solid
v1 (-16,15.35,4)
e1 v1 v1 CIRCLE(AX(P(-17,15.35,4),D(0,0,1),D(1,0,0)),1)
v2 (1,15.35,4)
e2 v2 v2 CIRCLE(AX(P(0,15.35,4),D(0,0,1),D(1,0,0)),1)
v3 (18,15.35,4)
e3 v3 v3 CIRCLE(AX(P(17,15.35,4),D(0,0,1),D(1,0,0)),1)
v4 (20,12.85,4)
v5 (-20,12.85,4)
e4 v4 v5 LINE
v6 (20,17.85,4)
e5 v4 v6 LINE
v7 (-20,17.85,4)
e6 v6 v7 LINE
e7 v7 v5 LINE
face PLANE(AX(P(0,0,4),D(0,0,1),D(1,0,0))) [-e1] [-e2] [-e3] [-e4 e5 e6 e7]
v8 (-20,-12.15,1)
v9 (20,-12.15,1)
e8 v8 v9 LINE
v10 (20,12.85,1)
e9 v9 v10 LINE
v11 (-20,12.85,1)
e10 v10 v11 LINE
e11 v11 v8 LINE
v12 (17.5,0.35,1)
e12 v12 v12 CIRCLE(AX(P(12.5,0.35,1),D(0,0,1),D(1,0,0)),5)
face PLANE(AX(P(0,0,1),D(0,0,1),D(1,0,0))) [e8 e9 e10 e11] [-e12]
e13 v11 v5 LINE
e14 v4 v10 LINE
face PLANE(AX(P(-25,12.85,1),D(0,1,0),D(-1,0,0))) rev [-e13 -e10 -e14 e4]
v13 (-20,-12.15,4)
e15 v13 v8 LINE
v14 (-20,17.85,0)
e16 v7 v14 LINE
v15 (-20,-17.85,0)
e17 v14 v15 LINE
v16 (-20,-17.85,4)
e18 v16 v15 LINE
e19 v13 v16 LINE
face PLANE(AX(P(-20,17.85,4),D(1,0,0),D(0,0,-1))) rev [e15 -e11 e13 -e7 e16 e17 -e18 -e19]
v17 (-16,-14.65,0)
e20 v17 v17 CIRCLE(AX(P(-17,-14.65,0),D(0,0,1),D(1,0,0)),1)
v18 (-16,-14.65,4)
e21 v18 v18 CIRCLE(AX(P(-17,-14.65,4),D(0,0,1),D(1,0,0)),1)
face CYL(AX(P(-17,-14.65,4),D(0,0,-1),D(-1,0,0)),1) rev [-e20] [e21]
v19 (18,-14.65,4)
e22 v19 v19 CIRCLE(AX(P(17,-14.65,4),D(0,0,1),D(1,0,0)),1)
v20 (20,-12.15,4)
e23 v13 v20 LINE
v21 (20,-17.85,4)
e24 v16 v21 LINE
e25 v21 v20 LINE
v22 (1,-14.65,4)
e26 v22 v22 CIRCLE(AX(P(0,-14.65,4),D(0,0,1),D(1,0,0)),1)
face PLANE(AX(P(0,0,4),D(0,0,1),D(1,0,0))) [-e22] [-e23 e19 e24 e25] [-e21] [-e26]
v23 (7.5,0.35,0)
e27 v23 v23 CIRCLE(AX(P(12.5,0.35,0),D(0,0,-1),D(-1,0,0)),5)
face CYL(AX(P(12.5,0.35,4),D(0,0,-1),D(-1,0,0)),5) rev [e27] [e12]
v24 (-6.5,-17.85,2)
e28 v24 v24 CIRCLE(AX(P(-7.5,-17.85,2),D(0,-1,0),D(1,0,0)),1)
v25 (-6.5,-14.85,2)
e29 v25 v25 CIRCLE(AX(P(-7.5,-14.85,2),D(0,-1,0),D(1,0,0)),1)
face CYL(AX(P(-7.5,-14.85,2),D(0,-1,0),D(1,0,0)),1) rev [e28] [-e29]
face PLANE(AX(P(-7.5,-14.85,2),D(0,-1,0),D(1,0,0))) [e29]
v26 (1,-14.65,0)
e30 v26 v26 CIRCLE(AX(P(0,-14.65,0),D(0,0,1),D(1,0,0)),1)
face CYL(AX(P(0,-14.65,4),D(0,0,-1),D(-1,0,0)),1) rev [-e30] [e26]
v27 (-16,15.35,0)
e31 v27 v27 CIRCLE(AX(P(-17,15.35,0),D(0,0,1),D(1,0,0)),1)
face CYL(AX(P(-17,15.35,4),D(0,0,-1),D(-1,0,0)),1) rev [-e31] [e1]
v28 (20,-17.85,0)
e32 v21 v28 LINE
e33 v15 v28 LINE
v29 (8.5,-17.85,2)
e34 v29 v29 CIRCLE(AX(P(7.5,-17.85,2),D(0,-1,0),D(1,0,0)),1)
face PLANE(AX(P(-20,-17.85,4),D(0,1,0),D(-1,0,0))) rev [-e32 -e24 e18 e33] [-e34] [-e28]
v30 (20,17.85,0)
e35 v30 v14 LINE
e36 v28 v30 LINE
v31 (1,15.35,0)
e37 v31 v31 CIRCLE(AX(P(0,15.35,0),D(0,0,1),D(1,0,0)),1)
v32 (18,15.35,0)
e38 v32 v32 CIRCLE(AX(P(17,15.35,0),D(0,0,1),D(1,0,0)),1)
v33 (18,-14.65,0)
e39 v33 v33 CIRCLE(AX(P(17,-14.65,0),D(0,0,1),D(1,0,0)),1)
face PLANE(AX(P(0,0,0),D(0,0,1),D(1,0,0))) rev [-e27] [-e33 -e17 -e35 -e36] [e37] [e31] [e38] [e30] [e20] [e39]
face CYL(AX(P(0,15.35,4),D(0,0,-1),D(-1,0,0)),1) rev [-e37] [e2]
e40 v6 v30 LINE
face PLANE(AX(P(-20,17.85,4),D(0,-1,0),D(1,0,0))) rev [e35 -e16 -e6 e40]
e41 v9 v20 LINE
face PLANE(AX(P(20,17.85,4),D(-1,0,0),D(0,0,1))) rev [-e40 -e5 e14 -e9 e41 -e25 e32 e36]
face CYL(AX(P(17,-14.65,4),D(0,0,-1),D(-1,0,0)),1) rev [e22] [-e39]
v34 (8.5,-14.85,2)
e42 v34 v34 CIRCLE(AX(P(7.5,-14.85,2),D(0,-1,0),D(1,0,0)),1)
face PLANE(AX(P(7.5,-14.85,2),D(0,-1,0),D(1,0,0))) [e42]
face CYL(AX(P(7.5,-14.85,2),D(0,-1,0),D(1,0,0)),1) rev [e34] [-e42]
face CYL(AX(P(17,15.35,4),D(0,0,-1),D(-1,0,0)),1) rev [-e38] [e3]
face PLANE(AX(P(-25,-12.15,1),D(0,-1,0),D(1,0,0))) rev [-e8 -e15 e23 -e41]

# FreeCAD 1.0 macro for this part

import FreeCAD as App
import Part
import Sketcher

V = App.Vector
Q = App.Units.Quantity


def add_polygon(sketch, points):
    """Adds a closed chain of lines whose ends are joined by coincident constraints."""
    first, n = sketch.GeometryCount, len(points)
    for a, b in zip(points, points[1:] + points[:1]):
        sketch.addGeometry(Part.LineSegment(App.Vector(*a, 0), App.Vector(*b, 0)), False)
    for i in range(n):
        sketch.addConstraint(Sketcher.Constraint("Coincident", first + i, 2, first + (i + 1) % n, 1))

doc = App.newDocument("Part")
params = doc.addObject("Spreadsheet::Sheet", "Params")
for row, (alias, value) in enumerate([
    ("sketch1_diameter", "2 mm"),
    ("sketch1_width", "40 mm"),
    ("sketch1_height", "35.7 mm"),
    ("pad1_length", "4 mm"),
    ("sketch2_width", "50 mm"),
    ("sketch2_height", "25 mm"),
    ("pocket1_length", "3 mm"),
    ("sketch3_diameter", "2 mm"),
    ("pocket2_length", "3 mm"),
    ("sketch4_diameter", "10 mm"),
], start=1):
    params.set(f"A{row}", alias)
    params.set(f"B{row}", "=" + value)
    params.setAlias(f"B{row}", alias)

body = doc.addObject("PartDesign::Body", "Body")

# Sketch on XY plane
sketch1 = body.newObject("Sketcher::SketchObject", "Sketch")
sketch1.AttachmentSupport = (doc.getObject("XY_Plane"), [""])
sketch1.MapMode = "FlatFace"
add_polygon(sketch1, [(-20, 17.9), (-20, -17.9), (20, -17.9), (20, 17.9)])  # lines 0-3
sketch1.addGeometry(Part.Circle(V(-17, -14.7, 0), V(0, 0, 1), 1), False)  # 4
sketch1.addGeometry(Part.Circle(V(0, -14.7, 0), V(0, 0, 1), 1), False)  # 5
sketch1.addGeometry(Part.Circle(V(17, -14.7, 0), V(0, 0, 1), 1), False)  # 6
sketch1.addGeometry(Part.Circle(V(-17, 15.3, 0), V(0, 0, 1), 1), False)  # 7
sketch1.addGeometry(Part.Circle(V(0, 15.3, 0), V(0, 0, 1), 1), False)  # 8
sketch1.addGeometry(Part.Circle(V(17, 15.3, 0), V(0, 0, 1), 1), False)  # 9
sketch1.addConstraint([
    Sketcher.Constraint("Vertical", 0),
    Sketcher.Constraint("Horizontal", 1),
    Sketcher.Constraint("Vertical", 2),
    Sketcher.Constraint("Horizontal", 3),
    Sketcher.Constraint("Equal", 4, 5),
    Sketcher.Constraint("Equal", 5, 6),
    Sketcher.Constraint("Equal", 6, 7),
    Sketcher.Constraint("Equal", 7, 8),
    Sketcher.Constraint("Equal", 8, 9),
    Sketcher.Constraint("Symmetric", 0, 2, 2, 2, -1, 1),
    Sketcher.Constraint("Symmetric", 4, 3, 6, 3, -2),
    Sketcher.Constraint("Symmetric", 7, 3, 9, 3, -2),
    Sketcher.Constraint("PointOnObject", 5, 3, -2),
    Sketcher.Constraint("PointOnObject", 8, 3, -2),
    Sketcher.Constraint("Horizontal", 4, 3, 5, 3),
    Sketcher.Constraint("Horizontal", 7, 3, 8, 3),
    Sketcher.Constraint("Vertical", 4, 3, 7, 3),
    Sketcher.Constraint("Diameter", 4, Q("2 mm")),
    Sketcher.Constraint("DistanceX", 1, 1, 1, 2, Q("40 mm")),
    Sketcher.Constraint("DistanceY", 0, 2, 0, 1, Q("35.7 mm")),
    Sketcher.Constraint("DistanceX", 4, 3, -1, 1, Q("17 mm")),
    Sketcher.Constraint("DistanceY", 4, 3, 7, 3, Q("30 mm")),
    Sketcher.Constraint("DistanceY", 0, 2, 4, 3, Q("3.2 mm")),
])
sketch1.setExpression("Constraints[21]", "Params.sketch1_diameter")
sketch1.setExpression("Constraints[22]", "Params.sketch1_width")
sketch1.setExpression("Constraints[23]", "Params.sketch1_height")
pad1 = body.newObject("PartDesign::Pad", "Pad")
pad1.Profile = sketch1
pad1.setExpression("Length", "Params.pad1_length")

# Sketch on XY plane
sketch2 = body.newObject("Sketcher::SketchObject", "Sketch001")
sketch2.AttachmentSupport = (doc.getObject("XY_Plane"), [""])
sketch2.MapMode = "FlatFace"
sketch2.AttachmentOffset = App.Placement(V(0, 0, 4), App.Rotation())
add_polygon(sketch2, [(-25, 13), (-25, -12), (25, -12), (25, 13)])  # lines 0-3
sketch2.addConstraint([
    Sketcher.Constraint("Vertical", 0),
    Sketcher.Constraint("Horizontal", 1),
    Sketcher.Constraint("Vertical", 2),
    Sketcher.Constraint("Horizontal", 3),
    Sketcher.Constraint("DistanceX", 1, 1, 1, 2, Q("50 mm")),
    Sketcher.Constraint("DistanceY", 0, 2, 0, 1, Q("25 mm")),
    Sketcher.Constraint("DistanceX", 0, 2, -1, 1, Q("25 mm")),
    Sketcher.Constraint("DistanceY", 0, 2, -1, 1, Q("12.15 mm")),
])
sketch2.setExpression("Constraints[8]", "Params.sketch2_width")
sketch2.setExpression("Constraints[9]", "Params.sketch2_height")
pocket1 = body.newObject("PartDesign::Pocket", "Pocket")
pocket1.Profile = sketch2
pocket1.setExpression("Length", "Params.pocket1_length")

# Sketch on XZ plane
sketch3 = body.newObject("Sketcher::SketchObject", "Sketch002")
sketch3.AttachmentSupport = (doc.getObject("XZ_Plane"), [""])
sketch3.MapMode = "FlatFace"
sketch3.AttachmentOffset = App.Placement(V(0, 0, 17.85), App.Rotation())
sketch3.addGeometry([
    Part.Circle(V(-7.5, 2, 0), V(0, 0, 1), 1),
    Part.Circle(V(7.5, 2, 0), V(0, 0, 1), 1),
], False)
sketch3.addConstraint([
    Sketcher.Constraint("Equal", 0, 1),
    Sketcher.Constraint("Symmetric", 0, 3, 1, 3, -2),
    Sketcher.Constraint("Diameter", 0, Q("2 mm")),
    Sketcher.Constraint("DistanceY", -1, 1, 0, 3, Q("2 mm")),
    Sketcher.Constraint("DistanceX", 0, 3, 1, 3, Q("15 mm")),
])
sketch3.setExpression("Constraints[2]", "Params.sketch3_diameter")
pocket2 = body.newObject("PartDesign::Pocket", "Pocket001")
pocket2.Profile = sketch3
pocket2.setExpression("Length", "Params.pocket2_length")

# Sketch on XY plane
sketch4 = body.newObject("Sketcher::SketchObject", "Sketch003")
sketch4.AttachmentSupport = (doc.getObject("XY_Plane"), [""])
sketch4.MapMode = "FlatFace"
sketch4.addGeometry(Part.Circle(V(12, 0, 0), V(0, 0, 1), 5), False)
sketch4.addConstraint([
    Sketcher.Constraint("Diameter", 0, Q("10 mm")),
    Sketcher.Constraint("DistanceX", -1, 1, 0, 3, Q("12.5 mm")),
    Sketcher.Constraint("DistanceY", -1, 1, 0, 3, Q("0.35 mm")),
])
sketch4.setExpression("Constraints[0]", "Params.sketch4_diameter")
pocket3 = body.newObject("PartDesign::Pocket", "Pocket002")
pocket3.Profile = sketch4
pocket3.Type = "ThroughAll"
pocket3.Reversed = True

doc.recompute()
